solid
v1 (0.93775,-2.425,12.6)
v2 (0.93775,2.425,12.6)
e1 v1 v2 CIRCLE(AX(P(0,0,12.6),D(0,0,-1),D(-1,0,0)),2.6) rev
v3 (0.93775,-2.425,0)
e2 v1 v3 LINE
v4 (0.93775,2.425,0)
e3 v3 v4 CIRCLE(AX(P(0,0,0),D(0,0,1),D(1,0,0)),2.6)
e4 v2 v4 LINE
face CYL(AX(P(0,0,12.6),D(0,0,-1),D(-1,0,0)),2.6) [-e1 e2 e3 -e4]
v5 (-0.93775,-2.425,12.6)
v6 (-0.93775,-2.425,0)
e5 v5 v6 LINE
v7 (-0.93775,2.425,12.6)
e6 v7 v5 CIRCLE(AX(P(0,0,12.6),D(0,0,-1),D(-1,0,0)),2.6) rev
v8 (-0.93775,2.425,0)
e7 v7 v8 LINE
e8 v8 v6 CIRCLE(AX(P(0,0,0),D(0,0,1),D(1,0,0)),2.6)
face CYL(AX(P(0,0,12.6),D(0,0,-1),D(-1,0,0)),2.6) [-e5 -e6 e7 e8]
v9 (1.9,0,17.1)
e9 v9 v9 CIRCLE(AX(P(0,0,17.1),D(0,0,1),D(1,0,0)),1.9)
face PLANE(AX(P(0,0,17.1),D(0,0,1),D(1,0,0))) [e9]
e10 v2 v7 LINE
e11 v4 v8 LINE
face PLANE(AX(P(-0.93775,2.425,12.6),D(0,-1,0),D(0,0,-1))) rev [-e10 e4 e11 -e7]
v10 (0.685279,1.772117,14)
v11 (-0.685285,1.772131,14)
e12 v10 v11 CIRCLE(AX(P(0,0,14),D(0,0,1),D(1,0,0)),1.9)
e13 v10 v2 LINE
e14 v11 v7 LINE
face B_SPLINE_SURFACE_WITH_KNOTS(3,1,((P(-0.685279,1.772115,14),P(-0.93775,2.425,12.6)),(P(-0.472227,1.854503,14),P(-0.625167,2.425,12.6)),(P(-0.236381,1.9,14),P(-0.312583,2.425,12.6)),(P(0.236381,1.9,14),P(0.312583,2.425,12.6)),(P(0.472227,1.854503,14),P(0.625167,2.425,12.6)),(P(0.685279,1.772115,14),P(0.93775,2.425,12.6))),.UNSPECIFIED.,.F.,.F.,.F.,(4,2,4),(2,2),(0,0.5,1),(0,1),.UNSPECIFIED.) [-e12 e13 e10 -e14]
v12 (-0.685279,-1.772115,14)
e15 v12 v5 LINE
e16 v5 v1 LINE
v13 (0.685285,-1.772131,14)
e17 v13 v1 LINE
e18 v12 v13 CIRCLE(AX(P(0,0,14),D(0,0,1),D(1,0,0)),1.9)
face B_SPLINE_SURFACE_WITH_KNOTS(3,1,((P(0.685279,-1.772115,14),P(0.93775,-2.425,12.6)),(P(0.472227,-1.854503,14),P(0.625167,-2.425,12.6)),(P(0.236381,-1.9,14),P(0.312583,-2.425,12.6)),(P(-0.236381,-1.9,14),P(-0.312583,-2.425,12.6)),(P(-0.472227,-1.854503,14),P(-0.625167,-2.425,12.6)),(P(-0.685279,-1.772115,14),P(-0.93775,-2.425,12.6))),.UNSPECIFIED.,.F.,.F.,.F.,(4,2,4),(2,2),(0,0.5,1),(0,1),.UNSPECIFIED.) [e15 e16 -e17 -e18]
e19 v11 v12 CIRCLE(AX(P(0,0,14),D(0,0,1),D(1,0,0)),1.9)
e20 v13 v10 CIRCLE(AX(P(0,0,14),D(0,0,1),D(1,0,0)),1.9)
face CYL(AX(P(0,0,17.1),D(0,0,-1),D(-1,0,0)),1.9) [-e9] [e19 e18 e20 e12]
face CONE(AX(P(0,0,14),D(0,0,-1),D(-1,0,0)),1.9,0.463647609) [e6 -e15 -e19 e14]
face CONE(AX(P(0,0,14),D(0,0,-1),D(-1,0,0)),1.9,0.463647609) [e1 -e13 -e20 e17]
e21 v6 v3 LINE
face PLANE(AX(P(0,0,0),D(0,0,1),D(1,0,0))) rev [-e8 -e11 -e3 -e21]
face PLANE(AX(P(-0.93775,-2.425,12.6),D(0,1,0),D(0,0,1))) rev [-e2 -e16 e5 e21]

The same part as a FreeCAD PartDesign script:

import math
import FreeCAD as App
import Part
import Sketcher
Q = App.Units.Quantity

doc = App.newDocument("Part")
body = doc.addObject("PartDesign::Body", "Body")

# Sketch on XY plane
sketch1 = doc.addObject("Sketcher::SketchObject", "Sketch")
body.addObject(sketch1)
sketch1.AttachmentSupport = (doc.XY_Plane, [""])
sketch1.MapMode = "FlatFace"
sketch1.addGeometry(Part.LineSegment(App.Vector(0.93775, 2.425, 0), App.Vector(-0.93775, 2.425, 0)), False)
sketch1.addGeometry(Part.ArcOfCircle(Part.Circle(App.Vector(0, 0, 0), App.Vector(0, 0, 1), 2.6), math.radians(111.141537), math.radians(248.858463)), False)
sketch1.addGeometry(Part.LineSegment(App.Vector(-0.93775, -2.425, 0), App.Vector(0.93775, -2.425, 0)), False)
sketch1.addGeometry(Part.ArcOfCircle(Part.Circle(App.Vector(0, 0, 0), App.Vector(0, 0, 1), 2.6), math.radians(-68.858463), math.radians(68.858463)), False)
sketch1.addConstraint(Sketcher.Constraint("Coincident", 0, 2, 1, 1))
sketch1.addConstraint(Sketcher.Constraint("Coincident", 1, 2, 2, 1))
sketch1.addConstraint(Sketcher.Constraint("Coincident", 2, 2, 3, 1))
sketch1.addConstraint(Sketcher.Constraint("Coincident", 3, 2, 0, 1))
sketch1.addConstraint(Sketcher.Constraint("Horizontal", 0))
sketch1.addConstraint(Sketcher.Constraint("Horizontal", 2))
sketch1.addConstraint(Sketcher.Constraint("Coincident", 1, 3, -1, 1))
sketch1.addConstraint(Sketcher.Constraint("Coincident", 3, 3, -1, 1))
sketch1.addConstraint(Sketcher.Constraint("Equal", 1, 3))
sketch1.addConstraint(Sketcher.Constraint("Vertical", 0, 2, 1, 2))
sketch1.addConstraint(Sketcher.Constraint("Radius", 1, Q("2.6 mm")))
sketch1.addConstraint(Sketcher.Constraint("DistanceY", 1, 2, 0, 2, Q("4.85 mm")))
pad1 = doc.addObject("PartDesign::Pad", "Pad")
body.addObject(pad1)
pad1.Profile = sketch1
pad1.Length = 12.6

# Sketch on XY plane
sketch2 = doc.addObject("Sketcher::SketchObject", "Sketch001")
body.addObject(sketch2)
sketch2.AttachmentSupport = (doc.XY_Plane, [""])
sketch2.MapMode = "FlatFace"
sketch2.AttachmentOffset = App.Placement(App.Vector(0, 0, 14), App.Rotation())
sketch2.addGeometry(Part.Circle(App.Vector(0, 0, 0), App.Vector(0, 0, 1), 1.9), False)
sketch2.addConstraint(Sketcher.Constraint("Coincident", 0, 3, -1, 1))
sketch2.addConstraint(Sketcher.Constraint("Diameter", 0, Q("3.8 mm")))

# Sketch on XY plane
sketch3 = doc.addObject("Sketcher::SketchObject", "Sketch002")
body.addObject(sketch3)
sketch3.AttachmentSupport = (doc.XY_Plane, [""])
sketch3.MapMode = "FlatFace"
sketch3.AttachmentOffset = App.Placement(App.Vector(0, 0, 12.6), App.Rotation())
sketch3.addGeometry(Part.LineSegment(App.Vector(-0.93775, -2.425, 0), App.Vector(0.93775, -2.425, 0)), False)
sketch3.addGeometry(Part.ArcOfCircle(Part.Circle(App.Vector(0, 0, 0), App.Vector(0, 0, 1), 2.6), math.radians(-68.858463), math.radians(68.858463)), False)
sketch3.addGeometry(Part.LineSegment(App.Vector(0.93775, 2.425, 0), App.Vector(-0.93775, 2.425, 0)), False)
sketch3.addGeometry(Part.ArcOfCircle(Part.Circle(App.Vector(0, 0, 0), App.Vector(0, 0, 1), 2.6), math.radians(111.141537), math.radians(248.858463)), False)
sketch3.addConstraint(Sketcher.Constraint("Coincident", 0, 2, 1, 1))
sketch3.addConstraint(Sketcher.Constraint("Coincident", 1, 2, 2, 1))
sketch3.addConstraint(Sketcher.Constraint("Coincident", 2, 2, 3, 1))
sketch3.addConstraint(Sketcher.Constraint("Coincident", 3, 2, 0, 1))
sketch3.addConstraint(Sketcher.Constraint("Horizontal", 0))
sketch3.addConstraint(Sketcher.Constraint("Horizontal", 2))
sketch3.addConstraint(Sketcher.Constraint("Coincident", 1, 3, -1, 1))
sketch3.addConstraint(Sketcher.Constraint("Coincident", 3, 3, -1, 1))
sketch3.addConstraint(Sketcher.Constraint("Equal", 1, 3))
sketch3.addConstraint(Sketcher.Constraint("Vertical", 0, 2, 1, 2))
sketch3.addConstraint(Sketcher.Constraint("Radius", 1, Q("2.6 mm")))
sketch3.addConstraint(Sketcher.Constraint("DistanceY", 0, 2, 1, 2, Q("4.85 mm")))

additiveloft = doc.addObject("PartDesign::AdditiveLoft", "AdditiveLoft")
body.addObject(additiveloft)
additiveloft.Profile = sketch2
additiveloft.Sections = [sketch3]

# Sketch on XY plane
sketch4 = doc.addObject("Sketcher::SketchObject", "Sketch003")
body.addObject(sketch4)
sketch4.AttachmentSupport = (doc.XY_Plane, [""])
sketch4.MapMode = "FlatFace"
sketch4.AttachmentOffset = App.Placement(App.Vector(0, 0, 14), App.Rotation())
sketch4.addGeometry(Part.ArcOfCircle(Part.Circle(App.Vector(0, 0, 0), App.Vector(0, 0, 1), 1.9), math.radians(68.858463), math.radians(111.141537)), False)
sketch4.addGeometry(Part.ArcOfCircle(Part.Circle(App.Vector(0, 0, 0), App.Vector(0, 0, 1), 1.9), math.radians(111.141537), math.radians(248.858463)), False)
sketch4.addGeometry(Part.ArcOfCircle(Part.Circle(App.Vector(0, 0, 0), App.Vector(0, 0, 1), 1.9), math.radians(-111.141537), math.radians(-68.858463)), False)
sketch4.addGeometry(Part.ArcOfCircle(Part.Circle(App.Vector(0, 0, 0), App.Vector(0, 0, 1), 1.9), math.radians(-68.858463), math.radians(68.858463)), False)
sketch4.addConstraint(Sketcher.Constraint("Tangent", 0, 2, 1, 1))
sketch4.addConstraint(Sketcher.Constraint("Tangent", 1, 2, 2, 1))
sketch4.addConstraint(Sketcher.Constraint("Tangent", 2, 2, 3, 1))
sketch4.addConstraint(Sketcher.Constraint("Tangent", 3, 2, 0, 1))
sketch4.addConstraint(Sketcher.Constraint("Coincident", 0, 3, -1, 1))
sketch4.addConstraint(Sketcher.Constraint("Equal", 0, 1))
sketch4.addConstraint(Sketcher.Constraint("Horizontal", 1, 2, 2, 2))
sketch4.addConstraint(Sketcher.Constraint("Horizontal", 0, 2, 3, 2))
sketch4.addConstraint(Sketcher.Constraint("Vertical", 0, 2, 1, 2))
sketch4.addConstraint(Sketcher.Constraint("Radius", 0, Q("1.9 mm")))
sketch4.addConstraint(Sketcher.Constraint("DistanceX", 0, 2, -1, 1, Q("0.685279 mm")))
pad2 = doc.addObject("PartDesign::Pad", "Pad001")
body.addObject(pad2)
pad2.Profile = sketch4
pad2.Length = 3.1

doc.recompute()
